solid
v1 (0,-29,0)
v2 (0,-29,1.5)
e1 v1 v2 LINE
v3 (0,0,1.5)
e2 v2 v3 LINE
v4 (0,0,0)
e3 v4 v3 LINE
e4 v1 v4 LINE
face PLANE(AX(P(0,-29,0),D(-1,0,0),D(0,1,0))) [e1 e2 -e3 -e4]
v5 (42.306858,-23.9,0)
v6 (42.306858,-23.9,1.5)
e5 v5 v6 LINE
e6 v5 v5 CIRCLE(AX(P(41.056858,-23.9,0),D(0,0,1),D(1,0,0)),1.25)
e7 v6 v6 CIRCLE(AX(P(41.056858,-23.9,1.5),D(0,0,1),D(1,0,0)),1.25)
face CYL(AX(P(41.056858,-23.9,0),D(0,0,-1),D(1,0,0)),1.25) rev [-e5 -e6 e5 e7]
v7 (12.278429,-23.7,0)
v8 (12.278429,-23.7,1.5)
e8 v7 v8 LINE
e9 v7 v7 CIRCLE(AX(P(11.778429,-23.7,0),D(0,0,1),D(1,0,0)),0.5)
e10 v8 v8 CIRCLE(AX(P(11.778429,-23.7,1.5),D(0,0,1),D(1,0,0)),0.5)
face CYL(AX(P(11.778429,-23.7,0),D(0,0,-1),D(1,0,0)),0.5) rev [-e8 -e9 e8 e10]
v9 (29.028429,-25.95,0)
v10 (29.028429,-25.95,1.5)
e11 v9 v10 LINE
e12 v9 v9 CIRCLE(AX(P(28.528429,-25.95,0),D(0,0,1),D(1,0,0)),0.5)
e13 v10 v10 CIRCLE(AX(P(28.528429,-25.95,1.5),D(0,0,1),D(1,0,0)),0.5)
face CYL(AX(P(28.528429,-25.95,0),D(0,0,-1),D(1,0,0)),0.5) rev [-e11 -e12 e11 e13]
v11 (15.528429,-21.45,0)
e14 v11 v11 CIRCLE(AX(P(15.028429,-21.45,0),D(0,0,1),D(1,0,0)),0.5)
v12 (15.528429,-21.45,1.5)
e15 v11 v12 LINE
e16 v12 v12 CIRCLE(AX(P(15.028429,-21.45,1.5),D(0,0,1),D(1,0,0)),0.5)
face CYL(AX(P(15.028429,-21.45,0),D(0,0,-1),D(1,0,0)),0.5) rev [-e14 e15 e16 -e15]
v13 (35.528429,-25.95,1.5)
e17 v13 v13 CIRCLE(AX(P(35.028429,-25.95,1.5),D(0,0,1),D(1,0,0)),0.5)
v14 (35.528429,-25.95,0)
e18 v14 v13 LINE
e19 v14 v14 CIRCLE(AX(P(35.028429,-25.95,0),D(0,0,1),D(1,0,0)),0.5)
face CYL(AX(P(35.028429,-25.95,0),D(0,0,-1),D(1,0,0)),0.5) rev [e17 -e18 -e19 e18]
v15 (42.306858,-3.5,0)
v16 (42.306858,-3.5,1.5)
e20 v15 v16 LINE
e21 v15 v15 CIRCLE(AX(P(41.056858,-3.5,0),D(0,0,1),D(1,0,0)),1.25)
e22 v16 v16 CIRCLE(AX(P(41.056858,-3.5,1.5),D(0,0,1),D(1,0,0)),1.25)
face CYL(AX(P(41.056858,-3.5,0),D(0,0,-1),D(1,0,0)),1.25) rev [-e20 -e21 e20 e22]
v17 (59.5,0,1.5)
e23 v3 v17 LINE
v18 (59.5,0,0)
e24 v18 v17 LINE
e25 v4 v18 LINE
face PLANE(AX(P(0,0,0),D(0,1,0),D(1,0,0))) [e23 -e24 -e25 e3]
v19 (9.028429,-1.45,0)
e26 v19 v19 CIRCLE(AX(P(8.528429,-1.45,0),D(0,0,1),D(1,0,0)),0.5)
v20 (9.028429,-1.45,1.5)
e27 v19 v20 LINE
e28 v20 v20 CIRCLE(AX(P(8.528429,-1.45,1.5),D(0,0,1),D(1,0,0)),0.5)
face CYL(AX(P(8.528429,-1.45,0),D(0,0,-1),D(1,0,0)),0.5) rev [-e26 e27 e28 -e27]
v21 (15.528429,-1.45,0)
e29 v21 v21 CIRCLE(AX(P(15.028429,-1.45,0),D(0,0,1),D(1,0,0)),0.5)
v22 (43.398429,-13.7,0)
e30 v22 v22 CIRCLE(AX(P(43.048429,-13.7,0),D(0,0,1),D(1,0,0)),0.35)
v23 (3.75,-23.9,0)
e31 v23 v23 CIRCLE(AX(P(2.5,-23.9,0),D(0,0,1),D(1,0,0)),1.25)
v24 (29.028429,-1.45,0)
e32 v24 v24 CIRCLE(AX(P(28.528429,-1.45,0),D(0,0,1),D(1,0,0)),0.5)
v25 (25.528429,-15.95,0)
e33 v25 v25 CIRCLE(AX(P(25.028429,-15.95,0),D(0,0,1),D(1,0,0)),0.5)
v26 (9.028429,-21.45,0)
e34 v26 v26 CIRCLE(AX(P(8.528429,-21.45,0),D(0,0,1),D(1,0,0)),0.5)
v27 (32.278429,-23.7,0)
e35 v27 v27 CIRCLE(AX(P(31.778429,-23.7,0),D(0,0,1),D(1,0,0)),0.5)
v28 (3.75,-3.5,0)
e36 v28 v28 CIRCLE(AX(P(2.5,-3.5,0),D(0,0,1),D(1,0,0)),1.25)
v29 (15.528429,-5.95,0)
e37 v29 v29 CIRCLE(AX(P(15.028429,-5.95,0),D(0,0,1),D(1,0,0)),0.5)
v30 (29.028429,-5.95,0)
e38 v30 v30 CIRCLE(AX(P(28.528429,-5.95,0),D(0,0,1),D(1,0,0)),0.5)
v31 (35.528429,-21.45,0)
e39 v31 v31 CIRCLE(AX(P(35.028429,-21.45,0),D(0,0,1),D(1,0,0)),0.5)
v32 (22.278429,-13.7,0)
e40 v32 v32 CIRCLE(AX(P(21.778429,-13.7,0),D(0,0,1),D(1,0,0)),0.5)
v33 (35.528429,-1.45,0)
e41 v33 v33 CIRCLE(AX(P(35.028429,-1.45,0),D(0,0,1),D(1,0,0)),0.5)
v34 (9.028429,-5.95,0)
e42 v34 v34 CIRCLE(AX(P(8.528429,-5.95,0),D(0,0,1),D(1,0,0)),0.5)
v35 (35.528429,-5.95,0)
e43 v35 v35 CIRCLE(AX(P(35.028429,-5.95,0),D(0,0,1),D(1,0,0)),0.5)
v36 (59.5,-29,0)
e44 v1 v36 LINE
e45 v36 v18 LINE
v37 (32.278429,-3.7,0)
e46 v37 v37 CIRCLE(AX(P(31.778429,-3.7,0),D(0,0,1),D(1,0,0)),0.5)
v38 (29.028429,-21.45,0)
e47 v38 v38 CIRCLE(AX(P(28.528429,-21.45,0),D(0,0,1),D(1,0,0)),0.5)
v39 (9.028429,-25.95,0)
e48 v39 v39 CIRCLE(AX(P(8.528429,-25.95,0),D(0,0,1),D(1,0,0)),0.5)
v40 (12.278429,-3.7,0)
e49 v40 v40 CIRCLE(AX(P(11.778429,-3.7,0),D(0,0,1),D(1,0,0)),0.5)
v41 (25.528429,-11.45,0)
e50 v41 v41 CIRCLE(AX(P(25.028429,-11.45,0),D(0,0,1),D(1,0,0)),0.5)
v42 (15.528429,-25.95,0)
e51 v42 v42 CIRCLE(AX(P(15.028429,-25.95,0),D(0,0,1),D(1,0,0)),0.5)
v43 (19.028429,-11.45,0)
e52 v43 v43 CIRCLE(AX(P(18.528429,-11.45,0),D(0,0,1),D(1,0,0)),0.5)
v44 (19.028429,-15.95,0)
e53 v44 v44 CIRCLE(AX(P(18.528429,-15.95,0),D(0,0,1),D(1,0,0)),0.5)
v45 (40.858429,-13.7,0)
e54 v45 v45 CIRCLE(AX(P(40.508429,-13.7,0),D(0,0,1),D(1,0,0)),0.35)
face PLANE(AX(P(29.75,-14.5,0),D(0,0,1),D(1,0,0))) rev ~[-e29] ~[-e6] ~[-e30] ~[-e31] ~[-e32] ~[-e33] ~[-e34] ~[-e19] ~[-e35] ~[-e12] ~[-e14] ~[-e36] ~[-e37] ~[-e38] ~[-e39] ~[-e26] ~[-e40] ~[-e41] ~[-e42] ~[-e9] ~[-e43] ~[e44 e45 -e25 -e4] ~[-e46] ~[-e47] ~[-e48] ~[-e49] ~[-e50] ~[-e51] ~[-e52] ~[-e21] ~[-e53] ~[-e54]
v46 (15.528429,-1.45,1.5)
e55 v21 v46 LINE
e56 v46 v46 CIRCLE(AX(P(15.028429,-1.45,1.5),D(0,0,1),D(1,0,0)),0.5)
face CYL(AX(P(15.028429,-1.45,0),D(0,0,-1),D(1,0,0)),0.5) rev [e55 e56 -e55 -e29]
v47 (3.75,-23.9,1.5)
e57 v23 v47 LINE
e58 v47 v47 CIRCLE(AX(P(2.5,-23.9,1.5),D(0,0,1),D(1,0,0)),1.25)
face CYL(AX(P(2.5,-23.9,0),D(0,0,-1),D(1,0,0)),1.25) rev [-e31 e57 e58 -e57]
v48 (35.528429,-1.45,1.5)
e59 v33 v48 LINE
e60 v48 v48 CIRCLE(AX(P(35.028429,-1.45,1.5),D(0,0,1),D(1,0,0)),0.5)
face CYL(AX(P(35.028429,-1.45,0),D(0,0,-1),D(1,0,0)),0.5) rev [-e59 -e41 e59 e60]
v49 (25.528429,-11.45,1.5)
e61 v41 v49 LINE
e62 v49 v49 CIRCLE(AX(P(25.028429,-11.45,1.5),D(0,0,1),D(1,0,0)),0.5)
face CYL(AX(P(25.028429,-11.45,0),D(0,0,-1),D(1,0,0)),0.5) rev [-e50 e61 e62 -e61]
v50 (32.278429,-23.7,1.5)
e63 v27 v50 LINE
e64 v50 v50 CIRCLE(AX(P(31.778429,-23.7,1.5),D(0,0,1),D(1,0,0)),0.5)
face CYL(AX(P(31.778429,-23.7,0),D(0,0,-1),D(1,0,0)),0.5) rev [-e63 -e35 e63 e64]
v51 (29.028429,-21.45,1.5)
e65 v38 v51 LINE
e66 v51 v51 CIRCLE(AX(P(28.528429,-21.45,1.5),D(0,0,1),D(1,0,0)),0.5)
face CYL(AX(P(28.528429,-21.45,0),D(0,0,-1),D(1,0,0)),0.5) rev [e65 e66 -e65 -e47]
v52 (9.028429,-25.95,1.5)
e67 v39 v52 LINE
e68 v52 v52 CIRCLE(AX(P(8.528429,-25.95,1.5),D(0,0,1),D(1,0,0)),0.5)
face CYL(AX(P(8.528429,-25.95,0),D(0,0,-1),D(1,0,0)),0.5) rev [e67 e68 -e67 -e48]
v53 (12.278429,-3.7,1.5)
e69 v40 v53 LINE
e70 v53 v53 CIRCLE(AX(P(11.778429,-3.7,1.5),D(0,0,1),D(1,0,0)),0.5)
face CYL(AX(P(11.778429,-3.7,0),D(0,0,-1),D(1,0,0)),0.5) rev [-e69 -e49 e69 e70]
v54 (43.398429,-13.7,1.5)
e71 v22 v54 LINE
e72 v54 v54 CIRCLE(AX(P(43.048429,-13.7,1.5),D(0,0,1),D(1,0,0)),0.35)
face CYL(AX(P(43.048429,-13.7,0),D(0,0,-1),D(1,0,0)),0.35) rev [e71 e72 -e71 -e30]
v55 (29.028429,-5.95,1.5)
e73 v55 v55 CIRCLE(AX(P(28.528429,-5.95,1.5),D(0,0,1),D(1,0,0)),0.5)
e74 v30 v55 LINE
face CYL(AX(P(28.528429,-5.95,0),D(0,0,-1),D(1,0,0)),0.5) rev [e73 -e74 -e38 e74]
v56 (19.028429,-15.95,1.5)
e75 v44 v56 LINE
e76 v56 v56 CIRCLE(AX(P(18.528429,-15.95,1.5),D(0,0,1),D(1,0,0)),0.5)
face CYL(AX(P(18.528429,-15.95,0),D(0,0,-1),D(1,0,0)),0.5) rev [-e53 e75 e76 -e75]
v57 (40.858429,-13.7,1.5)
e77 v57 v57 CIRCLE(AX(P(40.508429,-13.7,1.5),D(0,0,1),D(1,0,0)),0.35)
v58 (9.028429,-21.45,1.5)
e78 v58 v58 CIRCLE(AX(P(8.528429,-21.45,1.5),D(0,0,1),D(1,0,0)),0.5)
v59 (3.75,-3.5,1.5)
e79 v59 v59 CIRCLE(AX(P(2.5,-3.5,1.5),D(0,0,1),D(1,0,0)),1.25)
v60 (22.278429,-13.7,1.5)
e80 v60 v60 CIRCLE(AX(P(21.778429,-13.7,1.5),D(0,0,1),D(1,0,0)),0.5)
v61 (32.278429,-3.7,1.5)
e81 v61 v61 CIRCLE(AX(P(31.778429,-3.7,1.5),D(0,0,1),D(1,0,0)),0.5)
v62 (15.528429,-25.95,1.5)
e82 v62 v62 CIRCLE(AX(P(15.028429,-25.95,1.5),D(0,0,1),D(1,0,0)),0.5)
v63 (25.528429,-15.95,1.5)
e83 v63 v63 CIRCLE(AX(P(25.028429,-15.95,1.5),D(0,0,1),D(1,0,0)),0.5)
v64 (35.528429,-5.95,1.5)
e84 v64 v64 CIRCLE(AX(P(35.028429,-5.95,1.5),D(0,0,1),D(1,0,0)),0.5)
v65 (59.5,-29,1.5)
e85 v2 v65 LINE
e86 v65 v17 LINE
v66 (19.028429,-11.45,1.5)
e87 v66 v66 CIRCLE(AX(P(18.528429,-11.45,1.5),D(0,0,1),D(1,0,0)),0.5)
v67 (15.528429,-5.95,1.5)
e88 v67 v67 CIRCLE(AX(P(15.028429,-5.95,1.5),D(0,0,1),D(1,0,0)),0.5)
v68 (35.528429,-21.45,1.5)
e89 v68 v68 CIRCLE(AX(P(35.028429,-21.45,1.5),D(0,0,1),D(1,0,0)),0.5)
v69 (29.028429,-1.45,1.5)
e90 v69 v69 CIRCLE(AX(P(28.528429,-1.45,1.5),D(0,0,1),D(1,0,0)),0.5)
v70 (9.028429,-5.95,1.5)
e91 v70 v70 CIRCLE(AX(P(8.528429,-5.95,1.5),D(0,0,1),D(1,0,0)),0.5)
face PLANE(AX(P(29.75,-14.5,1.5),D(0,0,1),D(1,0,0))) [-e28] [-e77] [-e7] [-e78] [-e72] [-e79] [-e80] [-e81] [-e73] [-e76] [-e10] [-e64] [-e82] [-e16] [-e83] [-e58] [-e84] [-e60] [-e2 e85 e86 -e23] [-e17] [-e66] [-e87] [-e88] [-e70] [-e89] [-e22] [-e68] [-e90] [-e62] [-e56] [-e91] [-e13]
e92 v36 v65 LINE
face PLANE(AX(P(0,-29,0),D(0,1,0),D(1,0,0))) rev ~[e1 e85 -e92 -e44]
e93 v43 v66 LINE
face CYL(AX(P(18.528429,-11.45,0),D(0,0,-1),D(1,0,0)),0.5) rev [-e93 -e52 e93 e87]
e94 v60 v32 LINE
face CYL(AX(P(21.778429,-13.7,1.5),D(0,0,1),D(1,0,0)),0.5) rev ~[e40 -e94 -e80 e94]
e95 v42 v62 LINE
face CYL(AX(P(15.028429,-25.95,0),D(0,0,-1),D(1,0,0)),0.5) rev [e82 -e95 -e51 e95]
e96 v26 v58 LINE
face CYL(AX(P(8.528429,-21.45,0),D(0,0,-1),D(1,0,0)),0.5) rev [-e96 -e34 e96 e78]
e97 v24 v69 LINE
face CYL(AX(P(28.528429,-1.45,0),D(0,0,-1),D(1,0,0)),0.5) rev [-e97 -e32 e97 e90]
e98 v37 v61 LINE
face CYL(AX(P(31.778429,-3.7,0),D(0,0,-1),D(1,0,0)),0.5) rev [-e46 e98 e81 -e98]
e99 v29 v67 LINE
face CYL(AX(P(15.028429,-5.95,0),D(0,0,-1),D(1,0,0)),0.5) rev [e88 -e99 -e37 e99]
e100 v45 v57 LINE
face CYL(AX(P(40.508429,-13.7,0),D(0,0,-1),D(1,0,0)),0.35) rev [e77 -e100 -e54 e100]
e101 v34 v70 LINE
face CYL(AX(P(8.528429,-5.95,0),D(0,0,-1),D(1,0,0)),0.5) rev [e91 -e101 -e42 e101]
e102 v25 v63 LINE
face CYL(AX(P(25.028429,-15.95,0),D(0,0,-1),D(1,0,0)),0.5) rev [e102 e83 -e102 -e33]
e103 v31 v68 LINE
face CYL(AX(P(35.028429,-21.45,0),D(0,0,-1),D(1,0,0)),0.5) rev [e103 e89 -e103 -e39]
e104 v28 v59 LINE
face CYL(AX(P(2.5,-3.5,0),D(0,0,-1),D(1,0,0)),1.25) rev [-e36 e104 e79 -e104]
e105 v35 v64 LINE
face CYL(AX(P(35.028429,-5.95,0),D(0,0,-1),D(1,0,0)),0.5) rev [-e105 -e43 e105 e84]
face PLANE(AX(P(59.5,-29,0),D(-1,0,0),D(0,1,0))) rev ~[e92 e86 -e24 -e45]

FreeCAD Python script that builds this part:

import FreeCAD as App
import Part
import Sketcher

V = App.Vector
Q = App.Units.Quantity

doc = App.newDocument("Part")
body = doc.addObject("PartDesign::Body", "Body")

sketch1 = doc.addObject("Sketcher::SketchObject", "Sketch")
body.addObject(sketch1)
sketch1.AttachmentSupport = (doc.XY_Plane, [""])
sketch1.MapMode = "FlatFace"
sketch1.addGeometry(Part.LineSegment(V(0, 0, 0), V(0, -29, 0)), False)
sketch1.addGeometry(Part.LineSegment(V(0, -29, 0), V(59.5, -29, 0)), False)
sketch1.addGeometry(Part.LineSegment(V(59.5, -29, 0), V(59.5, 0, 0)), False)
sketch1.addGeometry(Part.LineSegment(V(59.5, 0, 0), V(0, 0, 0)), False)
sketch1.addGeometry(Part.Circle(V(2.5, -23.9, 0), V(0, 0, 1), 1.25), False)
sketch1.addGeometry(Part.Circle(V(8.528429, -25.95, 0), V(0, 0, 1), 0.5), False)
sketch1.addGeometry(Part.Circle(V(11.778429, -23.7, 0), V(0, 0, 1), 0.5), False)
sketch1.addGeometry(Part.Circle(V(8.528429, -21.45, 0), V(0, 0, 1), 0.5), False)
sketch1.addGeometry(Part.Circle(V(15.028429, -25.95, 0), V(0, 0, 1), 0.5), False)
sketch1.addGeometry(Part.Circle(V(15.028429, -21.45, 0), V(0, 0, 1), 0.5), False)
sketch1.addGeometry(Part.Circle(V(18.528429, -15.95, 0), V(0, 0, 1), 0.5), False)
sketch1.addGeometry(Part.Circle(V(28.528429, -25.95, 0), V(0, 0, 1), 0.5), False)
sketch1.addGeometry(Part.Circle(V(31.778429, -23.7, 0), V(0, 0, 1), 0.5), False)
sketch1.addGeometry(Part.Circle(V(28.528429, -21.45, 0), V(0, 0, 1), 0.5), False)
sketch1.addGeometry(Part.Circle(V(35.028429, -25.95, 0), V(0, 0, 1), 0.5), False)
sketch1.addGeometry(Part.Circle(V(41.056858, -23.9, 0), V(0, 0, 1), 1.25), False)
sketch1.addGeometry(Part.Circle(V(35.028429, -21.45, 0), V(0, 0, 1), 0.5), False)
sketch1.addGeometry(Part.Circle(V(25.028429, -15.95, 0), V(0, 0, 1), 0.5), False)
sketch1.addGeometry(Part.Circle(V(18.528429, -11.45, 0), V(0, 0, 1), 0.5), False)
sketch1.addGeometry(Part.Circle(V(8.528429, -5.95, 0), V(0, 0, 1), 0.5), False)
sketch1.addGeometry(Part.Circle(V(2.5, -3.5, 0), V(0, 0, 1), 1.25), False)
sketch1.addGeometry(Part.Circle(V(11.778429, -3.7, 0), V(0, 0, 1), 0.5), False)
sketch1.addGeometry(Part.Circle(V(8.528429, -1.45, 0), V(0, 0, 1), 0.5), False)
sketch1.addGeometry(Part.Circle(V(15.028429, -5.95, 0), V(0, 0, 1), 0.5), False)
sketch1.addGeometry(Part.Circle(V(15.028429, -1.45, 0), V(0, 0, 1), 0.5), False)
sketch1.addGeometry(Part.Circle(V(25.028429, -11.45, 0), V(0, 0, 1), 0.5), False)
sketch1.addGeometry(Part.Circle(V(40.508429, -13.7, 0), V(0, 0, 1), 0.35), False)
sketch1.addGeometry(Part.Circle(V(43.048429, -13.7, 0), V(0, 0, 1), 0.35), False)
sketch1.addGeometry(Part.Circle(V(28.528429, -5.95, 0), V(0, 0, 1), 0.5), False)
sketch1.addGeometry(Part.Circle(V(31.778429, -3.7, 0), V(0, 0, 1), 0.5), False)
sketch1.addGeometry(Part.Circle(V(28.528429, -1.45, 0), V(0, 0, 1), 0.5), False)
sketch1.addGeometry(Part.Circle(V(35.028429, -5.95, 0), V(0, 0, 1), 0.5), False)
sketch1.addGeometry(Part.Circle(V(35.028429, -1.45, 0), V(0, 0, 1), 0.5), False)
sketch1.addGeometry(Part.Circle(V(41.056858, -3.5, 0), V(0, 0, 1), 1.25), False)
sketch1.addConstraint(Sketcher.Constraint("Coincident", 0, 2, 1, 1))
sketch1.addConstraint(Sketcher.Constraint("Coincident", 1, 2, 2, 1))
sketch1.addConstraint(Sketcher.Constraint("Coincident", 2, 2, 3, 1))
sketch1.addConstraint(Sketcher.Constraint("Coincident", 3, 2, 0, 1))
sketch1.addConstraint(Sketcher.Constraint("Vertical", 0))
sketch1.addConstraint(Sketcher.Constraint("Horizontal", 1))
sketch1.addConstraint(Sketcher.Constraint("Vertical", 2))
sketch1.addConstraint(Sketcher.Constraint("Horizontal", 3))
sketch1.addConstraint(Sketcher.Constraint("Coincident", 3, 2, -1, 1))
sketch1.addConstraint(Sketcher.Constraint("Equal", 5, 6))
sketch1.addConstraint(Sketcher.Constraint("Equal", 6, 7))
sketch1.addConstraint(Sketcher.Constraint("Equal", 7, 8))
sketch1.addConstraint(Sketcher.Constraint("Equal", 8, 9))
sketch1.addConstraint(Sketcher.Constraint("Equal", 9, 10))
sketch1.addConstraint(Sketcher.Constraint("Equal", 10, 11))
sketch1.addConstraint(Sketcher.Constraint("Equal", 11, 12))
sketch1.addConstraint(Sketcher.Constraint("Equal", 12, 13))
sketch1.addConstraint(Sketcher.Constraint("Equal", 13, 14))
sketch1.addConstraint(Sketcher.Constraint("Equal", 4, 15))
sketch1.addConstraint(Sketcher.Constraint("Equal", 14, 16))
sketch1.addConstraint(Sketcher.Constraint("Equal", 16, 17))
sketch1.addConstraint(Sketcher.Constraint("Equal", 17, 18))
sketch1.addConstraint(Sketcher.Constraint("Equal", 18, 19))
sketch1.addConstraint(Sketcher.Constraint("Equal", 15, 20))
sketch1.addConstraint(Sketcher.Constraint("Equal", 19, 21))
sketch1.addConstraint(Sketcher.Constraint("Equal", 21, 22))
sketch1.addConstraint(Sketcher.Constraint("Equal", 22, 23))
sketch1.addConstraint(Sketcher.Constraint("Equal", 23, 24))
sketch1.addConstraint(Sketcher.Constraint("Equal", 24, 25))
sketch1.addConstraint(Sketcher.Constraint("Equal", 26, 27))
sketch1.addConstraint(Sketcher.Constraint("Equal", 25, 28))
sketch1.addConstraint(Sketcher.Constraint("Equal", 28, 29))
sketch1.addConstraint(Sketcher.Constraint("Equal", 29, 30))
sketch1.addConstraint(Sketcher.Constraint("Equal", 30, 31))
sketch1.addConstraint(Sketcher.Constraint("Equal", 31, 32))
sketch1.addConstraint(Sketcher.Constraint("Equal", 20, 33))
sketch1.addConstraint(Sketcher.Constraint("Horizontal", 5, 3, 8, 3))
sketch1.addConstraint(Sketcher.Constraint("Horizontal", 7, 3, 9, 3))
sketch1.addConstraint(Sketcher.Constraint("Horizontal", 8, 3, 11, 3))
sketch1.addConstraint(Sketcher.Constraint("Horizontal", 6, 3, 12, 3))
sketch1.addConstraint(Sketcher.Constraint("Horizontal", 9, 3, 13, 3))
sketch1.addConstraint(Sketcher.Constraint("Horizontal", 11, 3, 14, 3))
sketch1.addConstraint(Sketcher.Constraint("Horizontal", 4, 3, 15, 3))
sketch1.addConstraint(Sketcher.Constraint("Horizontal", 13, 3, 16, 3))
sketch1.addConstraint(Sketcher.Constraint("Horizontal", 10, 3, 17, 3))
sketch1.addConstraint(Sketcher.Constraint("Horizontal", 19, 3, 23, 3))
sketch1.addConstraint(Sketcher.Constraint("Horizontal", 22, 3, 24, 3))
sketch1.addConstraint(Sketcher.Constraint("Horizontal", 18, 3, 25, 3))
sketch1.addConstraint(Sketcher.Constraint("Horizontal", 26, 3, 27, 3))
sketch1.addConstraint(Sketcher.Constraint("Horizontal", 23, 3, 28, 3))
sketch1.addConstraint(Sketcher.Constraint("Horizontal", 21, 3, 29, 3))
sketch1.addConstraint(Sketcher.Constraint("Horizontal", 24, 3, 30, 3))
sketch1.addConstraint(Sketcher.Constraint("Horizontal", 28, 3, 31, 3))
sketch1.addConstraint(Sketcher.Constraint("Horizontal", 30, 3, 32, 3))
sketch1.addConstraint(Sketcher.Constraint("Horizontal", 20, 3, 33, 3))
sketch1.addConstraint(Sketcher.Constraint("Vertical", 5, 3, 7, 3))
sketch1.addConstraint(Sketcher.Constraint("Vertical", 8, 3, 9, 3))
sketch1.addConstraint(Sketcher.Constraint("Vertical", 11, 3, 13, 3))
sketch1.addConstraint(Sketcher.Constraint("Vertical", 14, 3, 16, 3))
sketch1.addConstraint(Sketcher.Constraint("Vertical", 10, 3, 18, 3))
sketch1.addConstraint(Sketcher.Constraint("Vertical", 7, 3, 19, 3))
sketch1.addConstraint(Sketcher.Constraint("Vertical", 4, 3, 20, 3))
sketch1.addConstraint(Sketcher.Constraint("Vertical", 6, 3, 21, 3))
sketch1.addConstraint(Sketcher.Constraint("Vertical", 19, 3, 22, 3))
sketch1.addConstraint(Sketcher.Constraint("Vertical", 9, 3, 23, 3))
sketch1.addConstraint(Sketcher.Constraint("Vertical", 23, 3, 24, 3))
sketch1.addConstraint(Sketcher.Constraint("Vertical", 17, 3, 25, 3))
sketch1.addConstraint(Sketcher.Constraint("Vertical", 13, 3, 28, 3))
sketch1.addConstraint(Sketcher.Constraint("Vertical", 12, 3, 29, 3))
sketch1.addConstraint(Sketcher.Constraint("Vertical", 28, 3, 30, 3))
sketch1.addConstraint(Sketcher.Constraint("Vertical", 16, 3, 31, 3))
sketch1.addConstraint(Sketcher.Constraint("Vertical", 31, 3, 32, 3))
sketch1.addConstraint(Sketcher.Constraint("Vertical", 15, 3, 33, 3))
sketch1.addConstraint(Sketcher.Constraint("Diameter", 5, Q("1 mm")))
sketch1.addConstraint(Sketcher.Constraint("Diameter", 4, Q("2.5 mm")))
sketch1.addConstraint(Sketcher.Constraint("Diameter", 26, Q("0.7 mm")))
sketch1.addConstraint(Sketcher.Constraint("DistanceY", 0, 2, 0, 1, Q("29 mm")))
sketch1.addConstraint(Sketcher.Constraint("DistanceX", 1, 1, 1, 2, Q("59.5 mm")))
sketch1.addConstraint(Sketcher.Constraint("DistanceY", 8, 3, 10, 3, Q("10 mm")))
sketch1.addConstraint(Sketcher.Constraint("DistanceX", 7, 3, 10, 3, Q("10 mm")))
sketch1.addConstraint(Sketcher.Constraint("DistanceX", 10, 3, 11, 3, Q("10 mm")))
sketch1.addConstraint(Sketcher.Constraint("DistanceX", 6, 3, 12, 3, Q("20 mm")))
sketch1.addConstraint(Sketcher.Constraint("DistanceX", 8, 3, 14, 3, Q("20 mm")))
sketch1.addConstraint(Sketcher.Constraint("DistanceX", 9, 3, 17, 3, Q("10 mm")))
sketch1.addConstraint(Sketcher.Constraint("DistanceY", 9, 3, 18, 3, Q("10 mm")))
sketch1.addConstraint(Sketcher.Constraint("DistanceY", 10, 3, 19, 3, Q("10 mm")))
sketch1.addConstraint(Sketcher.Constraint("DistanceY", 18, 3, 22, 3, Q("10 mm")))
sketch1.addConstraint(Sketcher.Constraint("DistanceY", 12, 3, 26, 3, Q("10 mm")))
sketch1.addConstraint(Sketcher.Constraint("DistanceY", 26, 3, 29, 3, Q("10 mm")))
sketch1.addConstraint(Sketcher.Constraint("DistanceX", -1, 1, 4, 3, Q("2.5 mm")))
sketch1.addConstraint(Sketcher.Constraint("DistanceY", 4, 3, -1, 1, Q("23.9 mm")))
sketch1.addConstraint(Sketcher.Constraint("DistanceY", 6, 3, -1, 1, Q("23.7 mm")))
sketch1.addConstraint(Sketcher.Constraint("DistanceY", 20, 3, -1, 1, Q("3.5 mm")))
sketch1.addConstraint(Sketcher.Constraint("DistanceY", 5, 3, 7, 3, Q("4.5 mm")))
sketch1.addConstraint(Sketcher.Constraint("DistanceX", 5, 3, 8, 3, Q("6.5 mm")))
sketch1.addConstraint(Sketcher.Constraint("DistanceY", 5, 3, -1, 1, Q("25.95 mm")))
sketch1.addConstraint(Sketcher.Constraint("DistanceX", 5, 3, 6, 3, Q("3.25 mm")))
sketch1.addConstraint(Sketcher.Constraint("DistanceX", 16, 3, 26, 3, Q("5.48 mm")))
sketch1.addConstraint(Sketcher.Constraint("DistanceX", 26, 3, 27, 3, Q("2.54 mm")))
sketch1.addConstraint(Sketcher.Constraint("DistanceX", -1, 1, 5, 3, Q("8.528429 mm")))
sketch1.addConstraint(Sketcher.Constraint("DistanceX", 14, 3, 15, 3, Q("6.028429 mm")))
pad1 = doc.addObject("PartDesign::Pad", "Pad")
body.addObject(pad1)
pad1.Profile = sketch1
pad1.Length = 1.5

sketch2 = doc.addObject("Sketcher::SketchObject", "Sketch001")
body.addObject(sketch2)
sketch2.AttachmentSupport = (doc.XY_Plane, [""])
sketch2.MapMode = "FlatFace"
sketch2.AttachmentOffset = App.Placement(V(0, 0, 1.5), App.Rotation())
sketch2.addGeometry(Part.Circle(V(21.778429, -13.7, 0), V(0, 0, 1), 0.5), False)
sketch2.addConstraint(Sketcher.Constraint("Diameter", 0, Q("1 mm")))
sketch2.addConstraint(Sketcher.Constraint("DistanceY", 0, 3, -1, 1, Q("13.7 mm")))
sketch2.addConstraint(Sketcher.Constraint("DistanceX", -1, 1, 0, 3, Q("21.778429 mm")))
pocket1 = doc.addObject("PartDesign::Pocket", "Pocket")
body.addObject(pocket1)
pocket1.Profile = sketch2
pocket1.Length = 2

doc.recompute()
